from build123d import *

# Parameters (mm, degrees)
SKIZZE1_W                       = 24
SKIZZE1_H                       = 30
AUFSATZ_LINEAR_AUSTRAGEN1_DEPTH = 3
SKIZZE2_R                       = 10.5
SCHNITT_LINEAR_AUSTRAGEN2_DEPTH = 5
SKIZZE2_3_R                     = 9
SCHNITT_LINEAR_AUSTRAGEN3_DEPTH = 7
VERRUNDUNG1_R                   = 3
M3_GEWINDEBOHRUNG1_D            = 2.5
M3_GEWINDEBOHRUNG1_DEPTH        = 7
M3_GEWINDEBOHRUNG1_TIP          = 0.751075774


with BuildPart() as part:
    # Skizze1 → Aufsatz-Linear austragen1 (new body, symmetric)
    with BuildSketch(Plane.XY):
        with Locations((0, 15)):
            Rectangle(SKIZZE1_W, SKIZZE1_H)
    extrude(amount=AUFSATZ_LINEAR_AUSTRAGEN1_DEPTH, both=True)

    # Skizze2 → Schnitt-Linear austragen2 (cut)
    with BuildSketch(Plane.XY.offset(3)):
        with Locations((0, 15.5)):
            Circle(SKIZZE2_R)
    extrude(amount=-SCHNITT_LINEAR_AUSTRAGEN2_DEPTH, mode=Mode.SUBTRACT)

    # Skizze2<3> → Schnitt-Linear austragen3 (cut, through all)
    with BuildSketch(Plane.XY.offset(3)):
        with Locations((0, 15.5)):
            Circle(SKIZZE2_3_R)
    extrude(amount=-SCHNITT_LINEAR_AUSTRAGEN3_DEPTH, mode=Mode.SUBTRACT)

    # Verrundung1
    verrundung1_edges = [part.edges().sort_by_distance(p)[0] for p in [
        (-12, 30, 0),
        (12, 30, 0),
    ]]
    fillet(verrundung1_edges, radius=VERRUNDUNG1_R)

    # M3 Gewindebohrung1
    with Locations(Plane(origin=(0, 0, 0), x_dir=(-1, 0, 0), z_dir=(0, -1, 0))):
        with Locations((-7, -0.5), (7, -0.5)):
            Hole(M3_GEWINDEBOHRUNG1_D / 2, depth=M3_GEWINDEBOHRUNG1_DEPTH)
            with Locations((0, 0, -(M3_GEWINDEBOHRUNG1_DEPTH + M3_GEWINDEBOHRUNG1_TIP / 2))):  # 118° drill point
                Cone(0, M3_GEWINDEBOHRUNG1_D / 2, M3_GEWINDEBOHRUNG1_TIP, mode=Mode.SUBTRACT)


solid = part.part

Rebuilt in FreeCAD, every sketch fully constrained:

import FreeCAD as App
import Part
import Sketcher


def edges_at(feature, points):
    """Names of the edges that pass closest to the given points."""
    edges = feature.Shape.Edges
    near = lambda p: min(range(len(edges)), key=lambda i: edges[i].distToShape(Part.Vertex(*p))[0])
    return sorted({f"Edge{near(p) + 1}" for p in points})

doc = App.newDocument("Part")
params = doc.addObject("Spreadsheet::Sheet", "Params")
for row, (alias, value) in enumerate([
    ("sketch1_width", "24 mm"),
    ("sketch1_height", "30 mm"),
    ("pad1_length", "6 mm"),
    ("sketch2_diameter", "21 mm"),
    ("pocket1_length", "5 mm"),
    ("sketch3_diameter", "18 mm"),
    ("fillet_radius", "3 mm"),
    ("sketch4_diameter", "2.5 mm"),
    ("hole_diameter", "2.5 mm"),
    ("hole_depth", "7 mm"),
], start=1):
    params.set(f"A{row}", alias)
    params.set(f"B{row}", "=" + value)
    params.setAlias(f"B{row}", alias)

body = doc.addObject("PartDesign::Body", "Body")

# Sketch on XY plane
sketch1 = doc.addObject("Sketcher::SketchObject", "Sketch")
body.addObject(sketch1)
sketch1.AttachmentSupport = (doc.XY_Plane, [""])
sketch1.MapMode = "FlatFace"
sketch1.addGeometry([
    Part.LineSegment(App.Vector(-12, 30, 0), App.Vector(-12, 0, 0)),
    Part.LineSegment(App.Vector(-12, 0, 0), App.Vector(12, 0, 0)),
    Part.LineSegment(App.Vector(12, 0, 0), App.Vector(12, 30, 0)),
    Part.LineSegment(App.Vector(12, 30, 0), App.Vector(-12, 30, 0)),
], False)
sketch1.addConstraint([
    Sketcher.Constraint("Coincident", 0, 2, 1, 1),
    Sketcher.Constraint("Coincident", 1, 2, 2, 1),
    Sketcher.Constraint("Coincident", 2, 2, 3, 1),
    Sketcher.Constraint("Coincident", 3, 2, 0, 1),
    Sketcher.Constraint("Vertical", 0),
    Sketcher.Constraint("Horizontal", 1),
    Sketcher.Constraint("Vertical", 2),
    Sketcher.Constraint("Horizontal", 3),
    Sketcher.Constraint("Symmetric", 0, 2, 1, 2, -1, 1),
    Sketcher.Constraint("DistanceX", 1, 1, 1, 2, 24.0),
    Sketcher.Constraint("DistanceY", 0, 2, 0, 1, 30.0),
])
sketch1.setExpression("Constraints[9]", "Params.sketch1_width")
sketch1.setExpression("Constraints[10]", "Params.sketch1_height")
pad1 = doc.addObject("PartDesign::Pad", "Pad")
body.addObject(pad1)
pad1.Profile = sketch1
pad1.setExpression("Length", "Params.pad1_length")
pad1.Midplane = True

# Sketch on XY plane
sketch2 = doc.addObject("Sketcher::SketchObject", "Sketch001")
body.addObject(sketch2)
sketch2.AttachmentSupport = (doc.XY_Plane, [""])
sketch2.MapMode = "FlatFace"
sketch2.AttachmentOffset = App.Placement(App.Vector(0, 0, 3), App.Rotation())
sketch2.addGeometry(Part.Circle(App.Vector(0, 16, 0), App.Vector(0, 0, 1), 10), False)
sketch2.addConstraint([
    Sketcher.Constraint("PointOnObject", 0, 3, -2),
    Sketcher.Constraint("Diameter", 0, 21.0),
    Sketcher.Constraint("DistanceY", -1, 1, 0, 3, 15.5),
])
sketch2.setExpression("Constraints[1]", "Params.sketch2_diameter")
pocket1 = doc.addObject("PartDesign::Pocket", "Pocket")
body.addObject(pocket1)
pocket1.Profile = sketch2
pocket1.setExpression("Length", "Params.pocket1_length")

# Sketch on XY plane
sketch3 = doc.addObject("Sketcher::SketchObject", "Sketch002")
body.addObject(sketch3)
sketch3.AttachmentSupport = (doc.XY_Plane, [""])
sketch3.MapMode = "FlatFace"
sketch3.AttachmentOffset = App.Placement(App.Vector(0, 0, 3), App.Rotation())
sketch3.addGeometry(Part.Circle(App.Vector(0, 16, 0), App.Vector(0, 0, 1), 9), False)
sketch3.addConstraint([
    Sketcher.Constraint("PointOnObject", 0, 3, -2),
    Sketcher.Constraint("Diameter", 0, 18.0),
    Sketcher.Constraint("DistanceY", -1, 1, 0, 3, 15.5),
])
sketch3.setExpression("Constraints[1]", "Params.sketch3_diameter")
pocket2 = doc.addObject("PartDesign::Pocket", "Pocket001")
body.addObject(pocket2)
pocket2.Profile = sketch3
pocket2.Type = "ThroughAll"
doc.recompute()

fillet = doc.addObject("PartDesign::Fillet", "Fillet")
body.addObject(fillet)
fillet.Base = (pocket2, edges_at(pocket2, [(-12, 30, 0), (12, 30, 0)]))
fillet.setExpression("Radius", "Params.fillet_radius")

# Sketch on XZ plane
sketch4 = doc.addObject("Sketcher::SketchObject", "Sketch003")
body.addObject(sketch4)
sketch4.AttachmentSupport = (doc.XZ_Plane, [""])
sketch4.MapMode = "FlatFace"
sketch4.addGeometry([
    Part.Circle(App.Vector(7, 0.5, 0), App.Vector(0, 0, 1), 1.2),
    Part.Circle(App.Vector(-7, 0.5, 0), App.Vector(0, 0, 1), 1.2),
], False)
sketch4.addConstraint([
    Sketcher.Constraint("Equal", 0, 1),
    Sketcher.Constraint("Symmetric", 0, 3, 1, 3, -2),
    Sketcher.Constraint("Diameter", 0, 2.5),
    Sketcher.Constraint("DistanceX", -1, 1, 0, 3, 7.0),
    Sketcher.Constraint("DistanceY", -1, 1, 0, 3, 0.5),
])
sketch4.setExpression("Constraints[2]", "Params.sketch4_diameter")
doc.recompute()
hole = doc.addObject("PartDesign::Hole", "Hole")
body.addObject(hole)
hole.Profile = sketch4
hole.ThreadType = "None"
hole.setExpression("Diameter", "Params.hole_diameter")
hole.DepthType = "Dimension"
hole.setExpression("Depth", "Params.hole_depth")
hole.DrillPoint = "Angled"
hole.DrillPointAngle = 118

doc.recompute()
